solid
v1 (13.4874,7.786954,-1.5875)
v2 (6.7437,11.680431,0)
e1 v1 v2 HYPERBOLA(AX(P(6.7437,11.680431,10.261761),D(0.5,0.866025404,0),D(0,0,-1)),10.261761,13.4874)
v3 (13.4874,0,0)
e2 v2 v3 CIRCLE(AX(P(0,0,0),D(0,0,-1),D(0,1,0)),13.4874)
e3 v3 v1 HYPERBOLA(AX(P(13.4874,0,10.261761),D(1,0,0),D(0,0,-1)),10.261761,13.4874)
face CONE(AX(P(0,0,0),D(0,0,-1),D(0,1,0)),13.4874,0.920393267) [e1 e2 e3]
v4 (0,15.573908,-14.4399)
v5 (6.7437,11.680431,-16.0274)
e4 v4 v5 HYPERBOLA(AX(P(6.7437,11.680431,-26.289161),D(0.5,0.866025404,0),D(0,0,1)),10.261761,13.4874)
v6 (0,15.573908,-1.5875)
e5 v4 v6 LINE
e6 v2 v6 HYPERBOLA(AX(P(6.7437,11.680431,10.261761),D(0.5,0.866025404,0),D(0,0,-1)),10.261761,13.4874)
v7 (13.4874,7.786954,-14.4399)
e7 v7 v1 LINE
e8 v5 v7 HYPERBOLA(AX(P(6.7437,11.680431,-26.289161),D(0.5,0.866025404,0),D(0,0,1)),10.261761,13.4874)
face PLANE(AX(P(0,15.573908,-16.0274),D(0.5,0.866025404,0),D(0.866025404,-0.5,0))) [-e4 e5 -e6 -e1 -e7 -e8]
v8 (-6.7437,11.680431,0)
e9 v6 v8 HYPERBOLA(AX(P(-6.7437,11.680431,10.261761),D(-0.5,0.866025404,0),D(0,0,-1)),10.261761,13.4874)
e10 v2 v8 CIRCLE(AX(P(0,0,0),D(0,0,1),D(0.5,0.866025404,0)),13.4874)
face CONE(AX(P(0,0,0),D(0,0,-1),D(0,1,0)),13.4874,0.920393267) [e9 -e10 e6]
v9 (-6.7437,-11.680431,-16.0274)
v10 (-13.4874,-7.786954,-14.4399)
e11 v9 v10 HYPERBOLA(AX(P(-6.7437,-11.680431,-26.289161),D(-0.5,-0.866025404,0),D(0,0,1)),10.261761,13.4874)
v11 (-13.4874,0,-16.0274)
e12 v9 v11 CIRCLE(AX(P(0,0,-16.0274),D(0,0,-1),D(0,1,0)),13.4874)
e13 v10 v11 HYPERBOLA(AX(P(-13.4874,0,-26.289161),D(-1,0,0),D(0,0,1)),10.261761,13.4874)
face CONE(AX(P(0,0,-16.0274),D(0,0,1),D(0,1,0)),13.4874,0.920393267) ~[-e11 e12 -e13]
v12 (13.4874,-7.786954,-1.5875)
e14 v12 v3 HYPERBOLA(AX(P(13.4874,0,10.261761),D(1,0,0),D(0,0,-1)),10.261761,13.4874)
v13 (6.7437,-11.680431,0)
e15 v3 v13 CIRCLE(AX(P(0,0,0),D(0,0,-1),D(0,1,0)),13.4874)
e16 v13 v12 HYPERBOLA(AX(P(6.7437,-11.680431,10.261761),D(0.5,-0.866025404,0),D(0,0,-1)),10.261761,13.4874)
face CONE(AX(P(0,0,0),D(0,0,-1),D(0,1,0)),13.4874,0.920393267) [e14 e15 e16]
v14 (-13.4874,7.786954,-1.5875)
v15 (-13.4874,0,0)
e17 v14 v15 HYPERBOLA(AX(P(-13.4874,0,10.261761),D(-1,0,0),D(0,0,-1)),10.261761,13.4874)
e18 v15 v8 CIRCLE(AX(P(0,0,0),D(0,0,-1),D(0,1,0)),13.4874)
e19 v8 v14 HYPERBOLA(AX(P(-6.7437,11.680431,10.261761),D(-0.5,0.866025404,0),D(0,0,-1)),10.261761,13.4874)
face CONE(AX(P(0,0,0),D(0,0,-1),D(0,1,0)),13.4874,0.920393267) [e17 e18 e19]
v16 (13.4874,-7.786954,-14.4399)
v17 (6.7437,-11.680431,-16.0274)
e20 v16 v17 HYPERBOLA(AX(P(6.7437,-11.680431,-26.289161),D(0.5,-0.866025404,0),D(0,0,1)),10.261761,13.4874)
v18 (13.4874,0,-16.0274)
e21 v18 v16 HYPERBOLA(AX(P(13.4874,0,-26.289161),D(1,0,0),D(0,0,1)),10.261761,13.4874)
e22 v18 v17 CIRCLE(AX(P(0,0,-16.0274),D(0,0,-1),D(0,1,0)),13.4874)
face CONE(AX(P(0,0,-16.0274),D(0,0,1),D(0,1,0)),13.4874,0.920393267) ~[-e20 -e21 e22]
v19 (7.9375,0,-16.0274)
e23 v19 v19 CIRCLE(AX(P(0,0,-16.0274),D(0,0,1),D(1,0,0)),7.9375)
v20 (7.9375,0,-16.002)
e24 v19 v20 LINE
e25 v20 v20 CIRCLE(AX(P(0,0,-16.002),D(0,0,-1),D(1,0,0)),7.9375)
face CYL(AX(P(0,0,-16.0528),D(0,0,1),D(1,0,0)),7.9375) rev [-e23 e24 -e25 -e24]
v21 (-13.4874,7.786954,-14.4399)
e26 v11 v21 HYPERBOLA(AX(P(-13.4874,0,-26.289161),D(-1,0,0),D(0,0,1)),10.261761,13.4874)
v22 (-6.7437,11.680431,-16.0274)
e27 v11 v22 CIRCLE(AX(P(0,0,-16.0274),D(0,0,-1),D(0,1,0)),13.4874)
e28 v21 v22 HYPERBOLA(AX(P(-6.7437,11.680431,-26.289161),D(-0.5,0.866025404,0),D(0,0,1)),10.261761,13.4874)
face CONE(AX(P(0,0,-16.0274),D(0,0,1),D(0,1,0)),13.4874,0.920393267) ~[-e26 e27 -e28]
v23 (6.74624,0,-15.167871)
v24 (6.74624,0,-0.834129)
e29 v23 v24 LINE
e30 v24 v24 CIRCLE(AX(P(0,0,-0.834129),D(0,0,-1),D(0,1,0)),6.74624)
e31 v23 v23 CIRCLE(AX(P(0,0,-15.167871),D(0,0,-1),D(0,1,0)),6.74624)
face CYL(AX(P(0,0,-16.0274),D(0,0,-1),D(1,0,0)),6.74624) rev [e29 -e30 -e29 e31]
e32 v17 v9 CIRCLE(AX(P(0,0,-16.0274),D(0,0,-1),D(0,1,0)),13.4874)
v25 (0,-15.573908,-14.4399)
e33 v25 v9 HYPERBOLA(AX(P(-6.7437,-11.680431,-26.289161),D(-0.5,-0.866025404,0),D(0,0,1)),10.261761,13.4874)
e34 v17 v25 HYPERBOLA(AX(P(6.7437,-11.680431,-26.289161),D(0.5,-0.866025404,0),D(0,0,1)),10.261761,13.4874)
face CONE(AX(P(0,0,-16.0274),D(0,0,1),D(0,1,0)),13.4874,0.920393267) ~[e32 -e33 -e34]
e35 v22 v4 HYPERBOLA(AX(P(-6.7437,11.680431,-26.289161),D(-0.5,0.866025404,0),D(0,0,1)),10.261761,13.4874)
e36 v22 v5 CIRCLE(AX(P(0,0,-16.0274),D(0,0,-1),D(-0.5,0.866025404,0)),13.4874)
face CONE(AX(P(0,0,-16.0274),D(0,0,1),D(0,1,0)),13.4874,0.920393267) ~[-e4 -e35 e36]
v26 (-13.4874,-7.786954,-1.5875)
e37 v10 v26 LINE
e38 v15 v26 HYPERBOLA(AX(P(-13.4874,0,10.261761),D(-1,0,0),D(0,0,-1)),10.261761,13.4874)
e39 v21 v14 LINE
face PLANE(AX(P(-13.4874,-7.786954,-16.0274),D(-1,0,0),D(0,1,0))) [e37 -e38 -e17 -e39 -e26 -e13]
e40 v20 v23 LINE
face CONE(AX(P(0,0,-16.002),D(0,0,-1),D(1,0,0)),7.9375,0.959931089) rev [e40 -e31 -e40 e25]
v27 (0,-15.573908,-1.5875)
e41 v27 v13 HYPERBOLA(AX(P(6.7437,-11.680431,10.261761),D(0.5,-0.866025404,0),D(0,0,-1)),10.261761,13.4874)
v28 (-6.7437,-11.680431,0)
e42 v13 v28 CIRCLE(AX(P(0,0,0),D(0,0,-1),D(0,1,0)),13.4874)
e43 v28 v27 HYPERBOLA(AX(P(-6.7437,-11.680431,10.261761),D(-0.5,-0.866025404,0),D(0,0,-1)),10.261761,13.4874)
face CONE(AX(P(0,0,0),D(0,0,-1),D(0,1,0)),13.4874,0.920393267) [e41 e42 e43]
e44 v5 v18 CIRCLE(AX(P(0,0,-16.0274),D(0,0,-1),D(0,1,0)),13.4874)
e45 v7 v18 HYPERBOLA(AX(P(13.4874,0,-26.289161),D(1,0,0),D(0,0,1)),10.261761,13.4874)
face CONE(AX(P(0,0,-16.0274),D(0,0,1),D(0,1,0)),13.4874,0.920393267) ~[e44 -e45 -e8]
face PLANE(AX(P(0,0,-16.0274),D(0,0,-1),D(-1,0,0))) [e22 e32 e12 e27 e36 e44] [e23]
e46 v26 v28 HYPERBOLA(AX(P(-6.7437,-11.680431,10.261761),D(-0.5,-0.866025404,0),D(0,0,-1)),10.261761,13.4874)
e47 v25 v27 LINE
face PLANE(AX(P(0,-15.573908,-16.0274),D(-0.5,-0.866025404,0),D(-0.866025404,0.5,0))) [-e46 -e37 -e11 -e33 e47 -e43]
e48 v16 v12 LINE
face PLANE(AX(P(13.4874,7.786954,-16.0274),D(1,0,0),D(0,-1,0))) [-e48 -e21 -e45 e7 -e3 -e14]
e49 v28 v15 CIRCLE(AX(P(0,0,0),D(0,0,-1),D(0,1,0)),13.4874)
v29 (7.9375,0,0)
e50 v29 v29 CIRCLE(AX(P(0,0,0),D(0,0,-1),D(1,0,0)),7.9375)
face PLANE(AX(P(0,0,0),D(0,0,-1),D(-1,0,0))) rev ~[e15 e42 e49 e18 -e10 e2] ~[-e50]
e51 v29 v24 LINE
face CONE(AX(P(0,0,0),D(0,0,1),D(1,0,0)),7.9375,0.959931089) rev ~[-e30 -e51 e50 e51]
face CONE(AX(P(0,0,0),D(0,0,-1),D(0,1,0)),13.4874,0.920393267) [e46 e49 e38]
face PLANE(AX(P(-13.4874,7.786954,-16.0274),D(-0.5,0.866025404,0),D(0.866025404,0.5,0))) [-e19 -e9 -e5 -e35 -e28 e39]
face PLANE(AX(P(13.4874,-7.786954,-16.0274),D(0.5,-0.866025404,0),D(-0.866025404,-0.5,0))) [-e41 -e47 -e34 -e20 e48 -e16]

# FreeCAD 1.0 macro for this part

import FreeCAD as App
import Part
import Sketcher
from FreeCAD import Vector
Q = App.Units.Quantity

doc = App.newDocument("Part")
body = doc.addObject("PartDesign::Body", "Body")

sketch1 = body.newObject("Sketcher::SketchObject", "Sketch")
sketch1.AttachmentSupport = (doc.getObject("XY_Plane"), [""])
sketch1.MapMode = "FlatFace"
sketch1.AttachmentOffset = App.Placement(Vector(0, 0, -0.631 * 25.4), App.Rotation())
sketch1.addGeometry([
    Part.LineSegment(Vector(13, -8, 0), Vector(13, 8, 0)),
    Part.LineSegment(Vector(13, 8, 0), Vector(0, 16, 0)),
    Part.LineSegment(Vector(0, 16, 0), Vector(-13, 8, 0)),
    Part.LineSegment(Vector(-13, 8, 0), Vector(-13, -8, 0)),
    Part.LineSegment(Vector(-13, -8, 0), Vector(0, -16, 0)),
    Part.LineSegment(Vector(0, -16, 0), Vector(13, -8, 0)),
    Part.Circle(Vector(0, 0, 0), Vector(0, 0, 1), 7),
], False)
sketch1.addConstraint([
    Sketcher.Constraint("Coincident", 0, 2, 1, 1),
    Sketcher.Constraint("Coincident", 1, 2, 2, 1),
    Sketcher.Constraint("Coincident", 2, 2, 3, 1),
    Sketcher.Constraint("Coincident", 3, 2, 4, 1),
    Sketcher.Constraint("Coincident", 4, 2, 5, 1),
    Sketcher.Constraint("Coincident", 5, 2, 0, 1),
    Sketcher.Constraint("Vertical", 0),
    Sketcher.Constraint("Vertical", 3),
    Sketcher.Constraint("Coincident", 6, 3, -1, 1),
    Sketcher.Constraint("Symmetric", 0, 2, 3, 2, -1, 1),
    Sketcher.Constraint("Symmetric", 1, 2, 4, 2, -1, 1),
    Sketcher.Constraint("PointOnObject", 1, 2, -2),
    Sketcher.Constraint("Parallel", 2, 5),
    Sketcher.Constraint("Horizontal", 0, 2, 2, 2),
    Sketcher.Constraint("Angle", 1, Q("150 deg")),
    Sketcher.Constraint("Diameter", 6, Q("0.5312 in")),
    Sketcher.Constraint("DistanceX", -1, 1, 0, 2, Q("0.531 in")),
    Sketcher.Constraint("DistanceY", 0, 1, 0, 2, 15.573908),
])
pad1 = body.newObject("PartDesign::Pad", "Pad")
pad1.Profile = sketch1
pad1.Length = Q("0.631 in")

sketch2 = body.newObject("Sketcher::SketchObject", "Sketch001")
sketch2.AttachmentSupport = (doc.getObject("YZ_Plane"), [""])
sketch2.MapMode = "FlatFace"
sketch2.addGeometry([
    Part.LineSegment(Vector(15.6, -14.4, 0), Vector(13.5, -16, 0)),
    Part.LineSegment(Vector(13.5, -16, 0), Vector(13.5, -28.7, 0)),
    Part.LineSegment(Vector(13.5, -28.7, 0), Vector(28.3, -28.7, 0)),
    Part.LineSegment(Vector(28.3, -28.7, 0), Vector(28.3, -14.4, 0)),
    Part.LineSegment(Vector(28.3, -14.4, 0), Vector(15.6, -14.4, 0)),
    Part.LineSegment(Vector(28.3, -1.6, 0), Vector(28.3, 12.7, 0)),
    Part.LineSegment(Vector(28.3, 12.7, 0), Vector(13.5, 12.7, 0)),
    Part.LineSegment(Vector(13.5, 12.7, 0), Vector(13.5, 0, 0)),
    Part.LineSegment(Vector(13.5, 0, 0), Vector(15.6, -1.6, 0)),
    Part.LineSegment(Vector(15.6, -1.6, 0), Vector(28.3, -1.6, 0)),
], False)
sketch2.addConstraint([
    Sketcher.Constraint("Coincident", 0, 2, 1, 1),
    Sketcher.Constraint("Coincident", 1, 2, 2, 1),
    Sketcher.Constraint("Coincident", 2, 2, 3, 1),
    Sketcher.Constraint("Coincident", 3, 2, 4, 1),
    Sketcher.Constraint("Coincident", 4, 2, 0, 1),
    Sketcher.Constraint("Coincident", 5, 2, 6, 1),
    Sketcher.Constraint("Coincident", 6, 2, 7, 1),
    Sketcher.Constraint("Coincident", 7, 2, 8, 1),
    Sketcher.Constraint("Coincident", 8, 2, 9, 1),
    Sketcher.Constraint("Coincident", 9, 2, 5, 1),
    Sketcher.Constraint("Vertical", 1),
    Sketcher.Constraint("Horizontal", 2),
    Sketcher.Constraint("Vertical", 3),
    Sketcher.Constraint("Horizontal", 4),
    Sketcher.Constraint("Vertical", 5),
    Sketcher.Constraint("Horizontal", 6),
    Sketcher.Constraint("Vertical", 7),
    Sketcher.Constraint("Horizontal", 9),
    Sketcher.Constraint("PointOnObject", 7, 2, -1),
    Sketcher.Constraint("Vertical", 3, 2, 5, 2),
    Sketcher.Constraint("Vertical", 1, 2, 6, 2),
    Sketcher.Constraint("Vertical", 4, 2, 8, 2),
    Sketcher.Constraint("Equal", 9, 1),
    Sketcher.Constraint("Equal", 3, 5),
    Sketcher.Constraint("Equal", 1, 7),
    Sketcher.Constraint("DistanceX", 4, 2, 4, 1, Q("0.5 in")),
    Sketcher.Constraint("DistanceY", 3, 1, 3, 2, Q("0.5625 in")),
    Sketcher.Constraint("DistanceX", -1, 1, 0, 2, Q("0.531 in")),
    Sketcher.Constraint("DistanceY", 0, 2, -1, 1, Q("0.631 in")),
    Sketcher.Constraint("DistanceX", 2, 1, 2, 2, 14.786508),
])
groove = body.newObject("PartDesign::Groove", "Groove")
groove.Profile = sketch2
groove.ReferenceAxis = (sketch2, ["V_Axis"])
groove.Angle = 360

sketch3 = body.newObject("Sketcher::SketchObject", "Sketch002")
sketch3.AttachmentSupport = (doc.getObject("YZ_Plane"), [""])
sketch3.MapMode = "FlatFace"
sketch3.addGeometry([
    Part.LineSegment(Vector(7.94, -16, 0), Vector(6.63, -15.08, 0)),
    Part.LineSegment(Vector(6.63, -15.08, 0), Vector(6.63, -16.05, 0)),
    Part.LineSegment(Vector(6.63, -16.05, 0), Vector(7.94, -16.05, 0)),
    Part.LineSegment(Vector(7.94, -16.05, 0), Vector(7.94, -16, 0)),
    Part.LineSegment(Vector(7.94, 0, 0), Vector(7.94, 0.05, 0)),
    Part.LineSegment(Vector(7.94, 0.05, 0), Vector(6.63, 0.05, 0)),
    Part.LineSegment(Vector(6.63, 0.05, 0), Vector(6.63, -0.92, 0)),
    Part.LineSegment(Vector(6.63, -0.92, 0), Vector(7.94, 0, 0)),
], False)
sketch3.addConstraint([
    Sketcher.Constraint("Coincident", 0, 2, 1, 1),
    Sketcher.Constraint("Coincident", 1, 2, 2, 1),
    Sketcher.Constraint("Coincident", 2, 2, 3, 1),
    Sketcher.Constraint("Coincident", 3, 2, 0, 1),
    Sketcher.Constraint("Coincident", 4, 2, 5, 1),
    Sketcher.Constraint("Coincident", 5, 2, 6, 1),
    Sketcher.Constraint("Coincident", 6, 2, 7, 1),
    Sketcher.Constraint("Coincident", 7, 2, 4, 1),
    Sketcher.Constraint("Vertical", 1),
    Sketcher.Constraint("Horizontal", 2),
    Sketcher.Constraint("Vertical", 3),
    Sketcher.Constraint("Vertical", 4),
    Sketcher.Constraint("Horizontal", 5),
    Sketcher.Constraint("Vertical", 6),
    Sketcher.Constraint("PointOnObject", 7, 2, -1),
    Sketcher.Constraint("Vertical", 3, 2, 4, 2),
    Sketcher.Constraint("Vertical", 1, 2, 5, 2),
    Sketcher.Constraint("Equal", 3, 4),
    Sketcher.Constraint("Equal", 1, 6),
    Sketcher.Constraint("Angle", 0, Q("145 deg")),
    Sketcher.Constraint("DistanceY", 3, 1, 3, 2, Q("0.002 in")),
    Sketcher.Constraint("DistanceY", 3, 2, -1, 1, Q("0.63 in")),
    Sketcher.Constraint("DistanceX", -1, 1, 2, 2, Q("0.3125 in")),
    Sketcher.Constraint("DistanceX", 2, 1, 2, 2, 1.310386),
])
groove2 = body.newObject("PartDesign::Groove", "Groove001")
groove2.Profile = sketch3
groove2.ReferenceAxis = (sketch3, ["V_Axis"])
groove2.Angle = 360

doc.recompute()
